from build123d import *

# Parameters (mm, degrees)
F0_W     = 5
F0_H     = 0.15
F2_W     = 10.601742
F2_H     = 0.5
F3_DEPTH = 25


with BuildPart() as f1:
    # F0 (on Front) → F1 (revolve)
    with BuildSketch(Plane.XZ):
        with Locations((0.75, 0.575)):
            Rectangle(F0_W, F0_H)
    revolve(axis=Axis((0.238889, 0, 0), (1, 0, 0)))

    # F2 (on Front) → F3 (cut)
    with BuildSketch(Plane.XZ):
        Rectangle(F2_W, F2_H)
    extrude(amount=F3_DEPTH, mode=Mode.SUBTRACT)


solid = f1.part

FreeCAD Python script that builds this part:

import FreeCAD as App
import Part
import Sketcher
from FreeCAD import Vector


def add_polygon(sketch, points):
    """Adds a closed chain of lines whose ends are joined by coincident constraints."""
    first, n = sketch.GeometryCount, len(points)
    for a, b in zip(points, points[1:] + points[:1]):
        sketch.addGeometry(Part.LineSegment(App.Vector(*a, 0), App.Vector(*b, 0)), False)
    for i in range(n):
        sketch.addConstraint(Sketcher.Constraint("Coincident", first + i, 2, first + (i + 1) % n, 1))

doc = App.newDocument("Part")
body = doc.addObject("PartDesign::Body", "Body")

# Sketch on XZ plane
sketch1 = body.newObject("Sketcher::SketchObject", "Sketch")
sketch1.AttachmentSupport = (doc.getObject("XZ_Plane"), [""])
sketch1.MapMode = "FlatFace"
add_polygon(sketch1, [(-1.75, 0.65), (-1.75, 0.5), (3.25, 0.5), (3.25, 0.65)])  # lines 0-3
sketch1.addConstraint(Sketcher.Constraint("Vertical", 0))
sketch1.addConstraint(Sketcher.Constraint("Horizontal", 1))
sketch1.addConstraint(Sketcher.Constraint("Vertical", 2))
sketch1.addConstraint(Sketcher.Constraint("Horizontal", 3))
sketch1.addConstraint(Sketcher.Constraint("DistanceX", 1, 1, 1, 2, 5.0))
sketch1.addConstraint(Sketcher.Constraint("DistanceY", 0, 2, 0, 1, 0.15))
sketch1.addConstraint(Sketcher.Constraint("DistanceY", -1, 1, 0, 2, 0.5))
sketch1.addConstraint(Sketcher.Constraint("DistanceX", 0, 2, -1, 1, 1.75))
revolution = body.newObject("PartDesign::Revolution", "Revolution")
revolution.Profile = sketch1
revolution.ReferenceAxis = (sketch1, ["H_Axis"])
revolution.Angle = 360

# Sketch on XZ plane
sketch2 = body.newObject("Sketcher::SketchObject", "Sketch001")
sketch2.AttachmentSupport = (doc.getObject("XZ_Plane"), [""])
sketch2.MapMode = "FlatFace"
add_polygon(sketch2, [(-5.300871, 0.25), (-5.300871, -0.25), (5.300871, -0.25), (5.300871, 0.25)])  # lines 0-3
sketch2.addConstraint(Sketcher.Constraint("Vertical", 0))
sketch2.addConstraint(Sketcher.Constraint("Horizontal", 1))
sketch2.addConstraint(Sketcher.Constraint("Vertical", 2))
sketch2.addConstraint(Sketcher.Constraint("Horizontal", 3))
sketch2.addConstraint(Sketcher.Constraint("Symmetric", 0, 2, 2, 2, -1, 1))
sketch2.addConstraint(Sketcher.Constraint("DistanceY", 0, 2, 0, 1, 0.5))
sketch2.addConstraint(Sketcher.Constraint("DistanceX", 1, 1, 1, 2, 10.601742))
pocket1 = body.newObject("PartDesign::Pocket", "Pocket")
pocket1.Profile = sketch2
pocket1.Length = 25
pocket1.Reversed = True

doc.recompute()
